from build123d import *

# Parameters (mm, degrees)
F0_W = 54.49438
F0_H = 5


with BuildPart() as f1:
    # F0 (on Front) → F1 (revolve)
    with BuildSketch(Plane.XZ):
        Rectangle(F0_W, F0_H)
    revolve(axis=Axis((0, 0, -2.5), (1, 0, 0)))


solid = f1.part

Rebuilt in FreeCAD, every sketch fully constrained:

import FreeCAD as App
import Part
import Sketcher
from FreeCAD import Vector
Q = App.Units.Quantity


def add_polygon(sketch, points):
    """Adds a closed chain of lines whose ends are joined by coincident constraints."""
    first, n = sketch.GeometryCount, len(points)
    for a, b in zip(points, points[1:] + points[:1]):
        sketch.addGeometry(Part.LineSegment(App.Vector(*a, 0), App.Vector(*b, 0)), False)
    for i in range(n):
        sketch.addConstraint(Sketcher.Constraint("Coincident", first + i, 2, first + (i + 1) % n, 1))

doc = App.newDocument("Part")
body = doc.addObject("PartDesign::Body", "Body")

# Sketch on XZ plane
sketch1 = body.newObject("Sketcher::SketchObject", "Sketch")
sketch1.AttachmentSupport = (doc.getObject("XZ_Plane"), [""])
sketch1.MapMode = "FlatFace"
add_polygon(sketch1, [(-27.24719, 2.5), (-27.24719, -2.5), (27.24719, -2.5), (27.24719, 2.5)])  # lines 0-3
sketch1.addGeometry(Part.LineSegment(Vector(-27.24719, -2.5, 0), Vector(27.24719, -2.5, 0)), True)  # axis
sketch1.addConstraint([
    Sketcher.Constraint("Vertical", 0),
    Sketcher.Constraint("Horizontal", 1),
    Sketcher.Constraint("Vertical", 2),
    Sketcher.Constraint("Horizontal", 3),
    Sketcher.Constraint("Horizontal", 4),
    Sketcher.Constraint("Coincident", 4, 1, 0, 2),
    Sketcher.Constraint("Symmetric", 0, 2, 2, 2, -1, 1),
    Sketcher.Constraint("Vertical", 2, 2, 4, 2),
    Sketcher.Constraint("DistanceY", 0, 2, 0, 1, Q("5 mm")),
    Sketcher.Constraint("DistanceX", 1, 1, 1, 2, Q("54.49438 mm")),
])
revolution = body.newObject("PartDesign::Revolution", "Revolution")
revolution.Profile = sketch1
revolution.ReferenceAxis = (sketch1, ["Axis0"])
revolution.Angle = 360

doc.recompute()
